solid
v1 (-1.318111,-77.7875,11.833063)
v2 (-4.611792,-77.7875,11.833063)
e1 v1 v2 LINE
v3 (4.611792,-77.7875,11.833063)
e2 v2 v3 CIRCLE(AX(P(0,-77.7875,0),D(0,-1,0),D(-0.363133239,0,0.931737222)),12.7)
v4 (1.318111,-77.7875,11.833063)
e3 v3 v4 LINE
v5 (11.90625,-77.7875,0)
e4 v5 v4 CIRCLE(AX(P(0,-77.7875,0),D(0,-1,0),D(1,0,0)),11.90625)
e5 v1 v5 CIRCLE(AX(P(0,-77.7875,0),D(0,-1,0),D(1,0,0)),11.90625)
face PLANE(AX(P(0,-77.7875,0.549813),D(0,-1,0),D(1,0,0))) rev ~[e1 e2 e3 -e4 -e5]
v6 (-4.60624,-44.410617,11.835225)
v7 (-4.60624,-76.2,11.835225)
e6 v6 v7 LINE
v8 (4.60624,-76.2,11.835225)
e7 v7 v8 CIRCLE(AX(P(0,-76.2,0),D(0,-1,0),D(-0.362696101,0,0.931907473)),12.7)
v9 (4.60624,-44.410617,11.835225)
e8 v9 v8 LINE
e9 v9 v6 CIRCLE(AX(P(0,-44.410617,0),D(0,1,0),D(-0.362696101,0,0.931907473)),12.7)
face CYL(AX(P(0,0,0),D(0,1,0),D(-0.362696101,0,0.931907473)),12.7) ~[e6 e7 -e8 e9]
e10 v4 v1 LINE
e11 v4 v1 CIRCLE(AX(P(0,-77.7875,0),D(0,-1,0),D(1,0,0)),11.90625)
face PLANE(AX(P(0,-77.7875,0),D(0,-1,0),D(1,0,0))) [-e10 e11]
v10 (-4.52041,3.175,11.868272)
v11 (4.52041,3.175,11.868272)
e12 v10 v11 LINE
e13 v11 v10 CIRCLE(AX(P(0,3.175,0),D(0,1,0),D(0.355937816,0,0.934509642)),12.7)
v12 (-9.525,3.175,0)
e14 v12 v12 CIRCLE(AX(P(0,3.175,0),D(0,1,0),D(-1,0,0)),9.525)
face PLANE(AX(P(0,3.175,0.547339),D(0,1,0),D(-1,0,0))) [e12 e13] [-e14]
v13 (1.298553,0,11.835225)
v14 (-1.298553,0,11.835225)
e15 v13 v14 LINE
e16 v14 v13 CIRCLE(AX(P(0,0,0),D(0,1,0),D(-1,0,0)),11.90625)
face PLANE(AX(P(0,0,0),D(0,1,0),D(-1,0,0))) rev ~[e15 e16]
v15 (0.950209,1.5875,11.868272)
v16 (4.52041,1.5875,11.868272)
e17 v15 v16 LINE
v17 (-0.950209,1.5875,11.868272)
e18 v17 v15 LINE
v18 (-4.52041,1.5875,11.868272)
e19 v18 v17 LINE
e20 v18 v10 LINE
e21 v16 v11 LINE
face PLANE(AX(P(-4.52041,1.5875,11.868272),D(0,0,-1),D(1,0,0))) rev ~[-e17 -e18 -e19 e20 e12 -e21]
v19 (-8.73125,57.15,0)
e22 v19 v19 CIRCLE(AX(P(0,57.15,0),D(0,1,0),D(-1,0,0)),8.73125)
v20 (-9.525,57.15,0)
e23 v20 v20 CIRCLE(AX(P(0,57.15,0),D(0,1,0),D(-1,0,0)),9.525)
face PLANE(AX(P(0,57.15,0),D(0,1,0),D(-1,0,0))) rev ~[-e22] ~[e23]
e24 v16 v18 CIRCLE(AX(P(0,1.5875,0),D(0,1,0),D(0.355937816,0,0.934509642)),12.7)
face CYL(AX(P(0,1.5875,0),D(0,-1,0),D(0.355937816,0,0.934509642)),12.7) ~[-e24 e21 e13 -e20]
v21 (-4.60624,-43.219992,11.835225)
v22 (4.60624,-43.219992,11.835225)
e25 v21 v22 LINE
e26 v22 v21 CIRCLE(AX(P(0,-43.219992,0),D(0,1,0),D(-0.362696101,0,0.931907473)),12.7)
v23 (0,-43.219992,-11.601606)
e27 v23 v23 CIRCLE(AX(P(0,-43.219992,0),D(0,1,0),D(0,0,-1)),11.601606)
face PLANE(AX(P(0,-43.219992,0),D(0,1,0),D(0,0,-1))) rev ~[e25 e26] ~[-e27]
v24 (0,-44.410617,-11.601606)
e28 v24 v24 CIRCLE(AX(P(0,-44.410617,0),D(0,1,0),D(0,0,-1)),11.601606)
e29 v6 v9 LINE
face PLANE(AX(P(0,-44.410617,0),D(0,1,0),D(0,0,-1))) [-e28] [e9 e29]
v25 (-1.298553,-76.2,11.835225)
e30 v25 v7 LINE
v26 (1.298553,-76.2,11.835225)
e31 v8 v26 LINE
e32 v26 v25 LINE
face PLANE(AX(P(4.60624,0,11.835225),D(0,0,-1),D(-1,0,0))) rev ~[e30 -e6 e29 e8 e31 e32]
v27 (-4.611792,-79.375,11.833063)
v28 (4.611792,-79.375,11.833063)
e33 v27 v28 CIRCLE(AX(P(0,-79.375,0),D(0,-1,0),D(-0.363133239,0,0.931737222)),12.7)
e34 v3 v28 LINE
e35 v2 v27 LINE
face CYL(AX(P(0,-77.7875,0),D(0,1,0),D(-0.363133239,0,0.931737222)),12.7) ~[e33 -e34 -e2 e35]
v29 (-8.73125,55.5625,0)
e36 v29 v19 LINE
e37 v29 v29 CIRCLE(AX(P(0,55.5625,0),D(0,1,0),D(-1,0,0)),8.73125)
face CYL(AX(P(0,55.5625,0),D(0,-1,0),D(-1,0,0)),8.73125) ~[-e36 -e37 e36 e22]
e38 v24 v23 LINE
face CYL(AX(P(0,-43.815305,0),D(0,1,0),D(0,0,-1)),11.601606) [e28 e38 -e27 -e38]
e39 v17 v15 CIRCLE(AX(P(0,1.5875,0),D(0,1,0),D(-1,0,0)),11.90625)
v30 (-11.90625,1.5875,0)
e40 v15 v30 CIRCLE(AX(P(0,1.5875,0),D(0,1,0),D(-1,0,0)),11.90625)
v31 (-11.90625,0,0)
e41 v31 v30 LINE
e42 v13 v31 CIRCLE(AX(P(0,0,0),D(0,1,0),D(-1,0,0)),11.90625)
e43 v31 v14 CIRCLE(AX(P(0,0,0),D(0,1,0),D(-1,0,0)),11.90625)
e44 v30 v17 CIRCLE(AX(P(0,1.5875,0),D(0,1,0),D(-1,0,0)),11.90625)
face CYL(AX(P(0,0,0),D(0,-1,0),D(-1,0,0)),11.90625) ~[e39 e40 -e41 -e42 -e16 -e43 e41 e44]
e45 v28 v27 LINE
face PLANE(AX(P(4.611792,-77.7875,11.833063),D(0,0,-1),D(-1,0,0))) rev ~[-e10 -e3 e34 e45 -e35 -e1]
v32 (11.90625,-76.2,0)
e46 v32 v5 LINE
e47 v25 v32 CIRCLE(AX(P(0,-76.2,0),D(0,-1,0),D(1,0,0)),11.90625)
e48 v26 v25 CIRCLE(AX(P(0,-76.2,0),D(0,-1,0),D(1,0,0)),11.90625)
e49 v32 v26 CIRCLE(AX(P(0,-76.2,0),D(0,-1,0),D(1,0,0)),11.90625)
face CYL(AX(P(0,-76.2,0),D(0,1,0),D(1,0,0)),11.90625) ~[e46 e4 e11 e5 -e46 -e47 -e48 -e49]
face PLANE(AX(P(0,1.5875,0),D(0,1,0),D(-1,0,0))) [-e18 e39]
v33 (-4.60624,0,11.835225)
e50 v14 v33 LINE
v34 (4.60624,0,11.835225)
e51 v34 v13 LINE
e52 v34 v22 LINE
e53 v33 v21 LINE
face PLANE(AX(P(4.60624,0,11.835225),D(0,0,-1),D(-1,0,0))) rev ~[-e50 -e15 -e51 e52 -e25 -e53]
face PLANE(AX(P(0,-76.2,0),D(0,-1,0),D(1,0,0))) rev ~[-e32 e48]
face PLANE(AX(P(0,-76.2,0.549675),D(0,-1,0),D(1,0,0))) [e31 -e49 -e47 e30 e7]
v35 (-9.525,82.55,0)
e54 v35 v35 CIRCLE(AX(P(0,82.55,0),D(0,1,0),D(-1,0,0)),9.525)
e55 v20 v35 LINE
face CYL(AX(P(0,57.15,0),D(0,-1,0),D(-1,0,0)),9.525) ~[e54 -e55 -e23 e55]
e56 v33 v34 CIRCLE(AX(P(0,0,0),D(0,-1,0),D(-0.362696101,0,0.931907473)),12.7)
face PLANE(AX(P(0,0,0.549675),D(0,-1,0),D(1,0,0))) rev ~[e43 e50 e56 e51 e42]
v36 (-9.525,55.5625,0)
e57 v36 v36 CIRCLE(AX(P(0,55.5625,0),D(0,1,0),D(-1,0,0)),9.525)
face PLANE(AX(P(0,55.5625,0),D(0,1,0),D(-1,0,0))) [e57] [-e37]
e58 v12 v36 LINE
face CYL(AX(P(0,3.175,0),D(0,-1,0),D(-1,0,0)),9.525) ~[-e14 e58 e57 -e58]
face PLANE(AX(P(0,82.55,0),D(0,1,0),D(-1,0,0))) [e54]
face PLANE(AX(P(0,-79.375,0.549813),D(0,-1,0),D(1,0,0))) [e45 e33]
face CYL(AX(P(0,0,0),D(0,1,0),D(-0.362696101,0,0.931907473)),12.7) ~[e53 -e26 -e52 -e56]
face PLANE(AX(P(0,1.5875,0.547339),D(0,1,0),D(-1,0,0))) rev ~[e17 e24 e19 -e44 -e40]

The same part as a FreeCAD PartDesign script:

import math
import FreeCAD as App
import Part
import Sketcher
Q = App.Units.Quantity


def add_polygon(sketch, points):
    """Adds a closed chain of lines whose ends are joined by coincident constraints."""
    first, n = sketch.GeometryCount, len(points)
    for a, b in zip(points, points[1:] + points[:1]):
        sketch.addGeometry(Part.LineSegment(App.Vector(*a, 0), App.Vector(*b, 0)), False)
    for i in range(n):
        sketch.addConstraint(Sketcher.Constraint("Coincident", first + i, 2, first + (i + 1) % n, 1))

doc = App.newDocument("Part")
body = doc.addObject("PartDesign::Body", "Body")

# Sketch on XZ plane
sketch1 = body.newObject("Sketcher::SketchObject", "Sketch")
sketch1.AttachmentSupport = (doc.getObject("XZ_Plane"), [""])
sketch1.MapMode = "FlatFace"
sketch1.addGeometry(Part.LineSegment(App.Vector(5, 12, 0), App.Vector(-5, 12, 0)), False)
sketch1.addGeometry(Part.ArcOfCircle(Part.Circle(App.Vector(0, 0, 0), App.Vector(0, 0, 1), 13), math.radians(111), math.radians(429)), False)
sketch1.addConstraint(Sketcher.Constraint("Coincident", 0, 1, 1, 2))
sketch1.addConstraint(Sketcher.Constraint("Coincident", 1, 1, 0, 2))
sketch1.addConstraint(Sketcher.Constraint("Horizontal", 0))
sketch1.addConstraint(Sketcher.Constraint("Coincident", 1, 3, -1, 1))
sketch1.addConstraint(Sketcher.Constraint("Radius", 1, Q("0.5 in")))
sketch1.addConstraint(Sketcher.Constraint("DistanceX", 0, 2, 0, 1, Q("9.212481 mm")))
pad1 = body.newObject("PartDesign::Pad", "Pad")
pad1.Profile = sketch1
pad1.Length = Q("3 in")

# Sketch on XZ plane
sketch2 = body.newObject("Sketcher::SketchObject", "Sketch001")
sketch2.AttachmentSupport = (doc.getObject("XZ_Plane"), [""])
sketch2.MapMode = "FlatFace"
sketch2.AttachmentOffset = App.Placement(App.Vector(0, 0, 3 * 25.4), App.Rotation())
sketch2.addGeometry(Part.Circle(App.Vector(0, 0, 0), App.Vector(0, 0, 1), 12), False)
sketch2.addConstraint(Sketcher.Constraint("Coincident", 0, 3, -1, 1))
sketch2.addConstraint(Sketcher.Constraint("Diameter", 0, Q("0.9375 in")))
pad2 = body.newObject("PartDesign::Pad", "Pad001")
pad2.Profile = sketch2
pad2.Length = Q("0.0625 in")

# Sketch on XZ plane
sketch3 = body.newObject("Sketcher::SketchObject", "Sketch002")
sketch3.AttachmentSupport = (doc.getObject("XZ_Plane"), [""])
sketch3.MapMode = "FlatFace"
sketch3.AttachmentOffset = App.Placement(App.Vector(0, 0, 3.0625 * 25.4), App.Rotation())
sketch3.addGeometry(Part.LineSegment(App.Vector(5, 12, 0), App.Vector(-5, 12, 0)), False)
sketch3.addGeometry(Part.ArcOfCircle(Part.Circle(App.Vector(0, 0, 0), App.Vector(0, 0, 1), 13), math.radians(111), math.radians(429)), False)
sketch3.addConstraint(Sketcher.Constraint("Coincident", 0, 1, 1, 2))
sketch3.addConstraint(Sketcher.Constraint("Coincident", 1, 1, 0, 2))
sketch3.addConstraint(Sketcher.Constraint("Horizontal", 0))
sketch3.addConstraint(Sketcher.Constraint("Coincident", 1, 3, -1, 1))
sketch3.addConstraint(Sketcher.Constraint("Radius", 1, Q("0.5 in")))
sketch3.addConstraint(Sketcher.Constraint("DistanceX", 0, 2, 0, 1, Q("9.223584 mm")))
pad3 = body.newObject("PartDesign::Pad", "Pad002")
pad3.Profile = sketch3
pad3.Length = Q("0.0625 in")

# Sketch on XZ plane
sketch4 = body.newObject("Sketcher::SketchObject", "Sketch003")
sketch4.AttachmentSupport = (doc.getObject("XZ_Plane"), [""])
sketch4.MapMode = "FlatFace"
sketch4.addGeometry(Part.Circle(App.Vector(0, 0, 0), App.Vector(0, 0, 1), 12), False)
sketch4.addConstraint(Sketcher.Constraint("Coincident", 0, 3, -1, 1))
sketch4.addConstraint(Sketcher.Constraint("Diameter", 0, Q("0.9375 in")))
pad4 = body.newObject("PartDesign::Pad", "Pad003")
pad4.Profile = sketch4
pad4.Length = Q("0.0625 in")
pad4.Reversed = True

# Sketch on XZ plane
sketch5 = body.newObject("Sketcher::SketchObject", "Sketch004")
sketch5.AttachmentSupport = (doc.getObject("XZ_Plane"), [""])
sketch5.MapMode = "FlatFace"
sketch5.AttachmentOffset = App.Placement(App.Vector(0, 0, -0.0625 * 25.4), App.Rotation())
sketch5.addGeometry(Part.LineSegment(App.Vector(-5, 12, 0), App.Vector(5, 12, 0)), False)
sketch5.addGeometry(Part.ArcOfCircle(Part.Circle(App.Vector(0, 0, 0), App.Vector(0, 0, 1), 13), math.radians(111), math.radians(429)), False)
sketch5.addConstraint(Sketcher.Constraint("Coincident", 0, 1, 1, 1))
sketch5.addConstraint(Sketcher.Constraint("Coincident", 1, 2, 0, 2))
sketch5.addConstraint(Sketcher.Constraint("Horizontal", 0))
sketch5.addConstraint(Sketcher.Constraint("Coincident", 1, 3, -1, 1))
sketch5.addConstraint(Sketcher.Constraint("Radius", 1, Q("0.5 in")))
sketch5.addConstraint(Sketcher.Constraint("DistanceX", 0, 1, 0, 2, Q("9.040821 mm")))
pad5 = body.newObject("PartDesign::Pad", "Pad004")
pad5.Profile = sketch5
pad5.Length = Q("0.0625 in")
pad5.Reversed = True

# Sketch on XZ plane
sketch6 = body.newObject("Sketcher::SketchObject", "Sketch005")
sketch6.AttachmentSupport = (doc.getObject("XZ_Plane"), [""])
sketch6.MapMode = "FlatFace"
sketch6.AttachmentOffset = App.Placement(App.Vector(0, 0, -0.125 * 25.4), App.Rotation())
sketch6.addGeometry(Part.Circle(App.Vector(0, 0, 0), App.Vector(0, 0, 1), 10), False)
sketch6.addConstraint(Sketcher.Constraint("Coincident", 0, 3, -1, 1))
sketch6.addConstraint(Sketcher.Constraint("Diameter", 0, Q("0.75 in")))
pad6 = body.newObject("PartDesign::Pad", "Pad005")
pad6.Profile = sketch6
pad6.Length = Q("2.0625 in")
pad6.Reversed = True

# Sketch on XZ plane
sketch7 = body.newObject("Sketcher::SketchObject", "Sketch006")
sketch7.AttachmentSupport = (doc.getObject("XZ_Plane"), [""])
sketch7.MapMode = "FlatFace"
sketch7.AttachmentOffset = App.Placement(App.Vector(0, 0, -2.1875 * 25.4), App.Rotation())
sketch7.addGeometry(Part.Circle(App.Vector(0, 0, 0), App.Vector(0, 0, 1), 9), False)
sketch7.addConstraint(Sketcher.Constraint("Coincident", 0, 3, -1, 1))
sketch7.addConstraint(Sketcher.Constraint("Diameter", 0, Q("0.6875 in")))
pad7 = body.newObject("PartDesign::Pad", "Pad006")
pad7.Profile = sketch7
pad7.Length = Q("0.0625 in")
pad7.Reversed = True

# Sketch on XZ plane
sketch8 = body.newObject("Sketcher::SketchObject", "Sketch007")
sketch8.AttachmentSupport = (doc.getObject("XZ_Plane"), [""])
sketch8.MapMode = "FlatFace"
sketch8.AttachmentOffset = App.Placement(App.Vector(0, 0, -2.25 * 25.4), App.Rotation())
sketch8.addGeometry(Part.Circle(App.Vector(0, 0, 0), App.Vector(0, 0, 1), 10), False)
sketch8.addConstraint(Sketcher.Constraint("Coincident", 0, 3, -1, 1))
sketch8.addConstraint(Sketcher.Constraint("Diameter", 0, Q("0.75 in")))
pad8 = body.newObject("PartDesign::Pad", "Pad007")
pad8.Profile = sketch8
pad8.Length = Q("1 in")
pad8.Reversed = True

# Sketch on YZ plane
sketch9 = body.newObject("Sketcher::SketchObject", "Sketch008")
sketch9.AttachmentSupport = (doc.getObject("YZ_Plane"), [""])
sketch9.MapMode = "FlatFace"
add_polygon(sketch9, [(-44.4, -11.6), (-44.4, -12.8), (-43.2, -12.8), (-43.2, -11.6)])  # lines 0-3
sketch9.addConstraint(Sketcher.Constraint("Vertical", 0))
sketch9.addConstraint(Sketcher.Constraint("Horizontal", 1))
sketch9.addConstraint(Sketcher.Constraint("Vertical", 2))
sketch9.addConstraint(Sketcher.Constraint("Horizontal", 3))
sketch9.addConstraint(Sketcher.Constraint("Equal", 3, 0))
sketch9.addConstraint(Sketcher.Constraint("DistanceX", 1, 1, 1, 2, Q("0.046875 in")))
sketch9.addConstraint(Sketcher.Constraint("DistanceY", 0, 2, -1, 1, Q("12.792231 mm")))
sketch9.addConstraint(Sketcher.Constraint("DistanceX", 0, 2, -1, 1, Q("44.410617 mm")))
groove = body.newObject("PartDesign::Groove", "Groove")
groove.Profile = sketch9
groove.ReferenceAxis = (sketch9, ["H_Axis"])
groove.Angle = 360

doc.recompute()
